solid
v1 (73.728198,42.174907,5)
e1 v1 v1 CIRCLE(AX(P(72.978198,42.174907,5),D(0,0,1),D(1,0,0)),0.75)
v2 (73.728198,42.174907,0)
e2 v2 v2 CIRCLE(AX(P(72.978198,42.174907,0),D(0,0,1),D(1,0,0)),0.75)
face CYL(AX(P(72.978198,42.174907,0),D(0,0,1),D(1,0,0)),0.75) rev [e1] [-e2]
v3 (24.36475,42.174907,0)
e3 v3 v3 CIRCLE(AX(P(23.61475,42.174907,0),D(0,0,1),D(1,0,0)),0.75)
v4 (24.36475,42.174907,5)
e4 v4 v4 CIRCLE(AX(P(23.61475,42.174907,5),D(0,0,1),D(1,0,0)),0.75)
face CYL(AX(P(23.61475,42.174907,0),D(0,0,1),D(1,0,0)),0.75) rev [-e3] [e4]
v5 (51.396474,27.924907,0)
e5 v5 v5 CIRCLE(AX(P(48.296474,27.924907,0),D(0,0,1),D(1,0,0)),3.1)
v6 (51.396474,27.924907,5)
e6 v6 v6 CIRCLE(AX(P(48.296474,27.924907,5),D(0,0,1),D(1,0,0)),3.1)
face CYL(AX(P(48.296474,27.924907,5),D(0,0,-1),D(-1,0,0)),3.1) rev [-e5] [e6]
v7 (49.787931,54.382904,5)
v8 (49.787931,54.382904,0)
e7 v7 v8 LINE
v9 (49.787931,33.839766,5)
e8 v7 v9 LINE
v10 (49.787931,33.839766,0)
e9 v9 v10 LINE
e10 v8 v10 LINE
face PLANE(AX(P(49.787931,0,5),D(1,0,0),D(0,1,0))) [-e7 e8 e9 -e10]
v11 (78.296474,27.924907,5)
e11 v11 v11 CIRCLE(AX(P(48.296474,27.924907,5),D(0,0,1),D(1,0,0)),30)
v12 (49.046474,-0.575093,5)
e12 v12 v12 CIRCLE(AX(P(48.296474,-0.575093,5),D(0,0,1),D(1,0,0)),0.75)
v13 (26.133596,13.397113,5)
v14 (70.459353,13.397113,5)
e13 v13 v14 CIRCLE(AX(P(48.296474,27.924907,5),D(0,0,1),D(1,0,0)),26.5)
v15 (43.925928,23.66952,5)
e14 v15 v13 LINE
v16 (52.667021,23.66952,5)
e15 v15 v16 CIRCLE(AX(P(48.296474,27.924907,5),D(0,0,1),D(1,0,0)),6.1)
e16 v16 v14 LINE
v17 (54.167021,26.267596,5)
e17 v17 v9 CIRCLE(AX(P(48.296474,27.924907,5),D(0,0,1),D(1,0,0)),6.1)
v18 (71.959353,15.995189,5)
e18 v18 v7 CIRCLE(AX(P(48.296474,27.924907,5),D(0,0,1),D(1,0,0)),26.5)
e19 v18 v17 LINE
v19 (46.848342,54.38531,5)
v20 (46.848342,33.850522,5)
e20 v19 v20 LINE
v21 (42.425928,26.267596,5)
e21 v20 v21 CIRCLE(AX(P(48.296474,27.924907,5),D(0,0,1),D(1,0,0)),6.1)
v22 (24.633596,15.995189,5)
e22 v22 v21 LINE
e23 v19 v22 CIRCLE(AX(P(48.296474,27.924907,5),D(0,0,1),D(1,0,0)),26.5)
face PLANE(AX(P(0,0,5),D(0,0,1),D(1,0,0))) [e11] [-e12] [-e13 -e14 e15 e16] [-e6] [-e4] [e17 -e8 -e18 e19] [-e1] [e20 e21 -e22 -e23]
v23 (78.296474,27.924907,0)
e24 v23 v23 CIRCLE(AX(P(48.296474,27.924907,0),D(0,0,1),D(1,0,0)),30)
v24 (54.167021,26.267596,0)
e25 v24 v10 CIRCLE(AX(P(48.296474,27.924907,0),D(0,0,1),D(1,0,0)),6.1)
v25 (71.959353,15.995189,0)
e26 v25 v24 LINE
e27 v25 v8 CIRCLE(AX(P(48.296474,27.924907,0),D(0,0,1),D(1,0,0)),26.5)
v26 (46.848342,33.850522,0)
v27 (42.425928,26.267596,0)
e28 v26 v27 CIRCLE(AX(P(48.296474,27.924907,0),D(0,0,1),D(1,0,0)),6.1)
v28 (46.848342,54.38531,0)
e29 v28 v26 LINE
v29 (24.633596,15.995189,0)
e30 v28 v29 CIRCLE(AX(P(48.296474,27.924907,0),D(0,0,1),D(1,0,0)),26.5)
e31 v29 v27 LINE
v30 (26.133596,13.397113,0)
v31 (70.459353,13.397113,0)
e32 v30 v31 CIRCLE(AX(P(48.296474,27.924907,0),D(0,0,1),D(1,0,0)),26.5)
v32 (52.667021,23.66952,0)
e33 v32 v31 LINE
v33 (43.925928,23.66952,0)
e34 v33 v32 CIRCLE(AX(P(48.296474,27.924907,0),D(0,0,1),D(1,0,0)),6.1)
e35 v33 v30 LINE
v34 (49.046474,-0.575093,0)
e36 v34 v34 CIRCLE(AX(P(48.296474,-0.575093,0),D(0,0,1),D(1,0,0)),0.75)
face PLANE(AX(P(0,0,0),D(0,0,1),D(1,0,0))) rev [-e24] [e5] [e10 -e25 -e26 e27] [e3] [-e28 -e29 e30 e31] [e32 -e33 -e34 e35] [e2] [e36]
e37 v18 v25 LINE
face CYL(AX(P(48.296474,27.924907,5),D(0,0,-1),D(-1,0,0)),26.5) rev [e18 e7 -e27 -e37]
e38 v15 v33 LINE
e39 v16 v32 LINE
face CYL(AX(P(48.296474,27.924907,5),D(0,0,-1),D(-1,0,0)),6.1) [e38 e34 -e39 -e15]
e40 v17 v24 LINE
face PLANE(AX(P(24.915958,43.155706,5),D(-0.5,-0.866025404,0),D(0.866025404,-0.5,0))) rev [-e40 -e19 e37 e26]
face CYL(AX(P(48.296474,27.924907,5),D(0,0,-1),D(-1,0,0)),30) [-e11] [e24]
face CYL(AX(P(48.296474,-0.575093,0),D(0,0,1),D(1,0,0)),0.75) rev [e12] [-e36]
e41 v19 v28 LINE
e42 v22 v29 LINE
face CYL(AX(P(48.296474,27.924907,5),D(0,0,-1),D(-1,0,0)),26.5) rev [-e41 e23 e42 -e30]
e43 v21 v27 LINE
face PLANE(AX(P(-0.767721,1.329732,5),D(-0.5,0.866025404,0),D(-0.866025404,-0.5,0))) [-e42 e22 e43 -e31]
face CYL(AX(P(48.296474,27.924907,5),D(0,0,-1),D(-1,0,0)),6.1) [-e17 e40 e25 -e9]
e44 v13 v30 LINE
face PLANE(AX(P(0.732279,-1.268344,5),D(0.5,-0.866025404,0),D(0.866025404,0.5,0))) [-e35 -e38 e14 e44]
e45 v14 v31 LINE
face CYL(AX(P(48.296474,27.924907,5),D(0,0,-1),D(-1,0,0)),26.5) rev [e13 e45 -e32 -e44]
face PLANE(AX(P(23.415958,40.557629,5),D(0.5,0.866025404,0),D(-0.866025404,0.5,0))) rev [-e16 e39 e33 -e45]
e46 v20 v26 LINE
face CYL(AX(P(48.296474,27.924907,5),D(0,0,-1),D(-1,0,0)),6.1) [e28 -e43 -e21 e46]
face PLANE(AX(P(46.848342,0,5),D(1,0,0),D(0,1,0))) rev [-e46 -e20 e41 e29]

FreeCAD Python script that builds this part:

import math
import FreeCAD as App
import Part
import Sketcher
Q = App.Units.Quantity

doc = App.newDocument("Part")
params = doc.addObject("Spreadsheet::Sheet", "Params")
for row, (alias, value) in enumerate([
    ("sketch1_radius", "30 mm"),
    ("sketch1_diameter", "6.2 mm"),
    ("sketch1_radius2", "26.5 mm"),
    ("sketch1_radius3", "6.1 mm"),
    ("pad1_length", "5 mm"),
    ("sketch2_diameter", "1.5 mm"),
    ("pocket1_length", "5 mm"),
], start=1):
    params.set(f"A{row}", alias)
    params.set(f"B{row}", "=" + value)
    params.setAlias(f"B{row}", alias)

body = doc.addObject("PartDesign::Body", "Body")

# Sketch on XY plane
sketch1 = body.newObject("Sketcher::SketchObject", "Sketch")
sketch1.AttachmentSupport = (doc.getObject("XY_Plane"), [""])
sketch1.MapMode = "FlatFace"
sketch1.addGeometry([
    Part.ArcOfCircle(Part.Circle(App.Vector(48.296474, 27.924907, 0), App.Vector(0, 0, 1), 30), math.radians(92.766804), math.radians(207.134016)),  # 0
    Part.ArcOfCircle(Part.Circle(App.Vector(48.296474, 27.924907, 0), App.Vector(0, 0, 1), 30), math.radians(-152.865984), math.radians(-147.134016)),  # 1
    Part.ArcOfCircle(Part.Circle(App.Vector(48.296474, 27.924907, 0), App.Vector(0, 0, 1), 30), math.radians(-147.134016), math.radians(-32.865984)),  # 2
    Part.ArcOfCircle(Part.Circle(App.Vector(48.296474, 27.924908, 0), App.Vector(0, 0, 1), 30), math.radians(-32.865984), math.radians(-27.134016)),  # 3
    Part.ArcOfCircle(Part.Circle(App.Vector(48.296474, 27.924907, 0), App.Vector(0, 0, 1), 30), math.radians(-27.134016), math.radians(0)),  # 4
    Part.ArcOfCircle(Part.Circle(App.Vector(48.296474, 27.924907, 0), App.Vector(0, 0, 1), 30), math.radians(0), math.radians(87.150353)),  # 5
    Part.ArcOfCircle(Part.Circle(App.Vector(48.296474, 27.924908, 0), App.Vector(0, 0, 1), 29.999999), math.radians(87.150353), math.radians(92.766804)),  # 6
    Part.ArcOfCircle(Part.Circle(App.Vector(48.296474, 27.924907, 0), App.Vector(0, 0, 1), 26.5), math.radians(93.132574), math.radians(206.755108)),  # 7
    Part.LineSegment(App.Vector(46.848342, 54.38531, 0), App.Vector(46.848342, 33.850522, 0)),  # 8
    Part.ArcOfCircle(Part.Circle(App.Vector(48.296474, 27.924907, 0), App.Vector(0, 0, 1), 6.1), math.radians(103.733061), math.radians(195.764876)),  # 9
    Part.LineSegment(App.Vector(42.425928, 26.267596, 0), App.Vector(24.633596, 15.995189, 0)),  # 10
    Part.ArcOfCircle(Part.Circle(App.Vector(48.296474, 27.924907, 0), App.Vector(0, 0, 1), 26.5), math.radians(-146.755108), math.radians(-33.244892)),  # 11
    Part.LineSegment(App.Vector(26.133596, 13.397113, 0), App.Vector(43.925928, 23.66952, 0)),  # 12
    Part.ArcOfCircle(Part.Circle(App.Vector(48.296474, 27.924907, 0), App.Vector(0, 0, 1), 6.1), math.radians(-135.764876), math.radians(-44.235124)),  # 13
    Part.LineSegment(App.Vector(52.667021, 23.66952, 0), App.Vector(70.459353, 13.397113, 0)),  # 14
    Part.ArcOfCircle(Part.Circle(App.Vector(48.296474, 27.924907, 0), App.Vector(0, 0, 1), 26.5), math.radians(-26.755108), math.radians(0)),  # 15
    Part.LineSegment(App.Vector(71.959353, 15.995189, 0), App.Vector(54.167021, 26.267596, 0)),  # 16
    Part.ArcOfCircle(Part.Circle(App.Vector(48.296474, 27.924907, 0), App.Vector(0, 0, 1), 6.1), math.radians(-15.764876), math.radians(0)),  # 17
    Part.ArcOfCircle(Part.Circle(App.Vector(48.296474, 27.924907, 0), App.Vector(0, 0, 1), 6.1), math.radians(0), math.radians(75.847649)),  # 18
    Part.LineSegment(App.Vector(49.787931, 33.839766, 0), App.Vector(49.787931, 54.382904, 0)),  # 19
    Part.ArcOfCircle(Part.Circle(App.Vector(48.296474, 27.924907, 0), App.Vector(0, 0, 1), 26.5), math.radians(0), math.radians(86.773609)),  # 20
    Part.Circle(App.Vector(48.296474, 27.924907, 0), App.Vector(0, 0, 1), 3.1),  # 21
], False)
sketch1.addConstraint([
    Sketcher.Constraint("Tangent", 0, 2, 1, 1),
    Sketcher.Constraint("Tangent", 1, 2, 2, 1),
    Sketcher.Constraint("Tangent", 2, 2, 3, 1),
    Sketcher.Constraint("Tangent", 3, 2, 4, 1),
    Sketcher.Constraint("Tangent", 4, 2, 5, 1),
    Sketcher.Constraint("Tangent", 5, 2, 6, 1),
    Sketcher.Constraint("Tangent", 6, 2, 0, 1),
    Sketcher.Constraint("Coincident", 7, 1, 8, 1),
    Sketcher.Constraint("Coincident", 8, 2, 9, 1),
    Sketcher.Constraint("Coincident", 9, 2, 10, 1),
    Sketcher.Constraint("Coincident", 10, 2, 7, 2),
    Sketcher.Constraint("Coincident", 11, 1, 12, 1),
    Sketcher.Constraint("Coincident", 12, 2, 13, 1),
    Sketcher.Constraint("Coincident", 13, 2, 14, 1),
    Sketcher.Constraint("Coincident", 14, 2, 11, 2),
    Sketcher.Constraint("Coincident", 15, 1, 16, 1),
    Sketcher.Constraint("Coincident", 16, 2, 17, 1),
    Sketcher.Constraint("Tangent", 17, 2, 18, 1),
    Sketcher.Constraint("Coincident", 18, 2, 19, 1),
    Sketcher.Constraint("Coincident", 19, 2, 20, 2),
    Sketcher.Constraint("Tangent", 20, 1, 15, 2),
    Sketcher.Constraint("Vertical", 8),
    Sketcher.Constraint("Vertical", 19),
    Sketcher.Constraint("Coincident", 2, 3, 0, 3),
    Sketcher.Constraint("Coincident", 4, 3, 0, 3),
    Sketcher.Constraint("Coincident", 7, 3, 0, 3),
    Sketcher.Constraint("Coincident", 9, 3, 0, 3),
    Sketcher.Constraint("Coincident", 11, 3, 0, 3),
    Sketcher.Constraint("Coincident", 13, 3, 0, 3),
    Sketcher.Constraint("Coincident", 15, 3, 0, 3),
    Sketcher.Constraint("Coincident", 17, 3, 0, 3),
    Sketcher.Constraint("Coincident", 21, 3, 0, 3),
    Sketcher.Constraint("Equal", 7, 11),
    Sketcher.Constraint("Equal", 9, 13),
    Sketcher.Constraint("Equal", 11, 15),
    Sketcher.Constraint("Equal", 13, 17),
    Sketcher.Constraint("Equal", 17, 18),
    Sketcher.Constraint("Equal", 15, 20),
    Sketcher.Constraint("Parallel", 10, 12),
    Sketcher.Constraint("Parallel", 14, 16),
    Sketcher.Constraint("Horizontal", 1, 2, 2, 2),
    Sketcher.Constraint("Horizontal", 0, 2, 3, 2),
    Sketcher.Constraint("Horizontal", 21, 3, 4, 2),
    Sketcher.Constraint("Horizontal", 12, 2, 13, 2),
    Sketcher.Constraint("Horizontal", 11, 1, 14, 2),
    Sketcher.Constraint("Horizontal", 10, 2, 15, 1),
    Sketcher.Constraint("Horizontal", 4, 2, 17, 2),
    Sketcher.Constraint("Horizontal", 17, 2, 20, 1),
    Sketcher.Constraint("Vertical", 6, 2, 7, 1),
    Sketcher.Constraint("Vertical", 5, 2, 18, 2),
    Sketcher.Constraint("Equal", 10, 12),
    Sketcher.Constraint("Radius", 0, 30.0),
    Sketcher.Constraint("Diameter", 21, 6.2),
    Sketcher.Constraint("Radius", 7, 26.5),
    Sketcher.Constraint("Radius", 9, 6.1),
    Sketcher.Constraint("Angle", 10, Q("-150 deg")),
    Sketcher.Constraint("DistanceX", 0, 2, 1, 2, 1.5),
    Sketcher.Constraint("DistanceX", 10, 2, 11, 1, 1.5),
    Sketcher.Constraint("DistanceY", 0, 2, 1, 3, 13.6822),
    Sketcher.Constraint("DistanceY", 7, 1, 5, 2, 3.5025),
    Sketcher.Constraint("DistanceY", 8, 2, 8, 1, 20.534788),
    Sketcher.Constraint("DistanceY", -1, 1, 6, 3, 27.924908),
    Sketcher.Constraint("DistanceX", -1, 1, 0, 2, 21.598209),
])
sketch1.setExpression("Constraints[51]", "Params.sketch1_radius")
sketch1.setExpression("Constraints[52]", "Params.sketch1_diameter")
sketch1.setExpression("Constraints[53]", "Params.sketch1_radius2")
sketch1.setExpression("Constraints[54]", "Params.sketch1_radius3")
pad1 = body.newObject("PartDesign::Pad", "Pad")
pad1.Profile = sketch1
pad1.setExpression("Length", "Params.pad1_length")

# Sketch on XY plane
sketch2 = body.newObject("Sketcher::SketchObject", "Sketch001")
sketch2.AttachmentSupport = (doc.getObject("XY_Plane"), [""])
sketch2.MapMode = "FlatFace"
sketch2.AttachmentOffset = App.Placement(App.Vector(0, 0, 5), App.Rotation())
sketch2.addGeometry([
    Part.Circle(App.Vector(23.61475, 42.174907, 0), App.Vector(0, 0, 1), 0.75),
    Part.Circle(App.Vector(72.978198, 42.174907, 0), App.Vector(0, 0, 1), 0.75),
    Part.Circle(App.Vector(48.296474, -0.575093, 0), App.Vector(0, 0, 1), 0.75),
], False)
sketch2.addConstraint([
    Sketcher.Constraint("Equal", 0, 1),
    Sketcher.Constraint("Equal", 1, 2),
    Sketcher.Constraint("Horizontal", 0, 3, 1, 3),
    Sketcher.Constraint("Diameter", 0, 1.5),
    Sketcher.Constraint("DistanceY", 2, 3, 0, 3, 42.75),
    Sketcher.Constraint("DistanceX", -1, 1, 1, 3, 72.978198),
    Sketcher.Constraint("DistanceX", -1, 1, 0, 3, 23.61475),
    Sketcher.Constraint("DistanceY", -1, 1, 0, 3, 42.174907),
    Sketcher.Constraint("DistanceX", -1, 1, 2, 3, 48.296474),
])
sketch2.setExpression("Constraints[3]", "Params.sketch2_diameter")
pocket1 = body.newObject("PartDesign::Pocket", "Pocket")
pocket1.Profile = sketch2
pocket1.setExpression("Length", "Params.pocket1_length")

doc.recompute()
